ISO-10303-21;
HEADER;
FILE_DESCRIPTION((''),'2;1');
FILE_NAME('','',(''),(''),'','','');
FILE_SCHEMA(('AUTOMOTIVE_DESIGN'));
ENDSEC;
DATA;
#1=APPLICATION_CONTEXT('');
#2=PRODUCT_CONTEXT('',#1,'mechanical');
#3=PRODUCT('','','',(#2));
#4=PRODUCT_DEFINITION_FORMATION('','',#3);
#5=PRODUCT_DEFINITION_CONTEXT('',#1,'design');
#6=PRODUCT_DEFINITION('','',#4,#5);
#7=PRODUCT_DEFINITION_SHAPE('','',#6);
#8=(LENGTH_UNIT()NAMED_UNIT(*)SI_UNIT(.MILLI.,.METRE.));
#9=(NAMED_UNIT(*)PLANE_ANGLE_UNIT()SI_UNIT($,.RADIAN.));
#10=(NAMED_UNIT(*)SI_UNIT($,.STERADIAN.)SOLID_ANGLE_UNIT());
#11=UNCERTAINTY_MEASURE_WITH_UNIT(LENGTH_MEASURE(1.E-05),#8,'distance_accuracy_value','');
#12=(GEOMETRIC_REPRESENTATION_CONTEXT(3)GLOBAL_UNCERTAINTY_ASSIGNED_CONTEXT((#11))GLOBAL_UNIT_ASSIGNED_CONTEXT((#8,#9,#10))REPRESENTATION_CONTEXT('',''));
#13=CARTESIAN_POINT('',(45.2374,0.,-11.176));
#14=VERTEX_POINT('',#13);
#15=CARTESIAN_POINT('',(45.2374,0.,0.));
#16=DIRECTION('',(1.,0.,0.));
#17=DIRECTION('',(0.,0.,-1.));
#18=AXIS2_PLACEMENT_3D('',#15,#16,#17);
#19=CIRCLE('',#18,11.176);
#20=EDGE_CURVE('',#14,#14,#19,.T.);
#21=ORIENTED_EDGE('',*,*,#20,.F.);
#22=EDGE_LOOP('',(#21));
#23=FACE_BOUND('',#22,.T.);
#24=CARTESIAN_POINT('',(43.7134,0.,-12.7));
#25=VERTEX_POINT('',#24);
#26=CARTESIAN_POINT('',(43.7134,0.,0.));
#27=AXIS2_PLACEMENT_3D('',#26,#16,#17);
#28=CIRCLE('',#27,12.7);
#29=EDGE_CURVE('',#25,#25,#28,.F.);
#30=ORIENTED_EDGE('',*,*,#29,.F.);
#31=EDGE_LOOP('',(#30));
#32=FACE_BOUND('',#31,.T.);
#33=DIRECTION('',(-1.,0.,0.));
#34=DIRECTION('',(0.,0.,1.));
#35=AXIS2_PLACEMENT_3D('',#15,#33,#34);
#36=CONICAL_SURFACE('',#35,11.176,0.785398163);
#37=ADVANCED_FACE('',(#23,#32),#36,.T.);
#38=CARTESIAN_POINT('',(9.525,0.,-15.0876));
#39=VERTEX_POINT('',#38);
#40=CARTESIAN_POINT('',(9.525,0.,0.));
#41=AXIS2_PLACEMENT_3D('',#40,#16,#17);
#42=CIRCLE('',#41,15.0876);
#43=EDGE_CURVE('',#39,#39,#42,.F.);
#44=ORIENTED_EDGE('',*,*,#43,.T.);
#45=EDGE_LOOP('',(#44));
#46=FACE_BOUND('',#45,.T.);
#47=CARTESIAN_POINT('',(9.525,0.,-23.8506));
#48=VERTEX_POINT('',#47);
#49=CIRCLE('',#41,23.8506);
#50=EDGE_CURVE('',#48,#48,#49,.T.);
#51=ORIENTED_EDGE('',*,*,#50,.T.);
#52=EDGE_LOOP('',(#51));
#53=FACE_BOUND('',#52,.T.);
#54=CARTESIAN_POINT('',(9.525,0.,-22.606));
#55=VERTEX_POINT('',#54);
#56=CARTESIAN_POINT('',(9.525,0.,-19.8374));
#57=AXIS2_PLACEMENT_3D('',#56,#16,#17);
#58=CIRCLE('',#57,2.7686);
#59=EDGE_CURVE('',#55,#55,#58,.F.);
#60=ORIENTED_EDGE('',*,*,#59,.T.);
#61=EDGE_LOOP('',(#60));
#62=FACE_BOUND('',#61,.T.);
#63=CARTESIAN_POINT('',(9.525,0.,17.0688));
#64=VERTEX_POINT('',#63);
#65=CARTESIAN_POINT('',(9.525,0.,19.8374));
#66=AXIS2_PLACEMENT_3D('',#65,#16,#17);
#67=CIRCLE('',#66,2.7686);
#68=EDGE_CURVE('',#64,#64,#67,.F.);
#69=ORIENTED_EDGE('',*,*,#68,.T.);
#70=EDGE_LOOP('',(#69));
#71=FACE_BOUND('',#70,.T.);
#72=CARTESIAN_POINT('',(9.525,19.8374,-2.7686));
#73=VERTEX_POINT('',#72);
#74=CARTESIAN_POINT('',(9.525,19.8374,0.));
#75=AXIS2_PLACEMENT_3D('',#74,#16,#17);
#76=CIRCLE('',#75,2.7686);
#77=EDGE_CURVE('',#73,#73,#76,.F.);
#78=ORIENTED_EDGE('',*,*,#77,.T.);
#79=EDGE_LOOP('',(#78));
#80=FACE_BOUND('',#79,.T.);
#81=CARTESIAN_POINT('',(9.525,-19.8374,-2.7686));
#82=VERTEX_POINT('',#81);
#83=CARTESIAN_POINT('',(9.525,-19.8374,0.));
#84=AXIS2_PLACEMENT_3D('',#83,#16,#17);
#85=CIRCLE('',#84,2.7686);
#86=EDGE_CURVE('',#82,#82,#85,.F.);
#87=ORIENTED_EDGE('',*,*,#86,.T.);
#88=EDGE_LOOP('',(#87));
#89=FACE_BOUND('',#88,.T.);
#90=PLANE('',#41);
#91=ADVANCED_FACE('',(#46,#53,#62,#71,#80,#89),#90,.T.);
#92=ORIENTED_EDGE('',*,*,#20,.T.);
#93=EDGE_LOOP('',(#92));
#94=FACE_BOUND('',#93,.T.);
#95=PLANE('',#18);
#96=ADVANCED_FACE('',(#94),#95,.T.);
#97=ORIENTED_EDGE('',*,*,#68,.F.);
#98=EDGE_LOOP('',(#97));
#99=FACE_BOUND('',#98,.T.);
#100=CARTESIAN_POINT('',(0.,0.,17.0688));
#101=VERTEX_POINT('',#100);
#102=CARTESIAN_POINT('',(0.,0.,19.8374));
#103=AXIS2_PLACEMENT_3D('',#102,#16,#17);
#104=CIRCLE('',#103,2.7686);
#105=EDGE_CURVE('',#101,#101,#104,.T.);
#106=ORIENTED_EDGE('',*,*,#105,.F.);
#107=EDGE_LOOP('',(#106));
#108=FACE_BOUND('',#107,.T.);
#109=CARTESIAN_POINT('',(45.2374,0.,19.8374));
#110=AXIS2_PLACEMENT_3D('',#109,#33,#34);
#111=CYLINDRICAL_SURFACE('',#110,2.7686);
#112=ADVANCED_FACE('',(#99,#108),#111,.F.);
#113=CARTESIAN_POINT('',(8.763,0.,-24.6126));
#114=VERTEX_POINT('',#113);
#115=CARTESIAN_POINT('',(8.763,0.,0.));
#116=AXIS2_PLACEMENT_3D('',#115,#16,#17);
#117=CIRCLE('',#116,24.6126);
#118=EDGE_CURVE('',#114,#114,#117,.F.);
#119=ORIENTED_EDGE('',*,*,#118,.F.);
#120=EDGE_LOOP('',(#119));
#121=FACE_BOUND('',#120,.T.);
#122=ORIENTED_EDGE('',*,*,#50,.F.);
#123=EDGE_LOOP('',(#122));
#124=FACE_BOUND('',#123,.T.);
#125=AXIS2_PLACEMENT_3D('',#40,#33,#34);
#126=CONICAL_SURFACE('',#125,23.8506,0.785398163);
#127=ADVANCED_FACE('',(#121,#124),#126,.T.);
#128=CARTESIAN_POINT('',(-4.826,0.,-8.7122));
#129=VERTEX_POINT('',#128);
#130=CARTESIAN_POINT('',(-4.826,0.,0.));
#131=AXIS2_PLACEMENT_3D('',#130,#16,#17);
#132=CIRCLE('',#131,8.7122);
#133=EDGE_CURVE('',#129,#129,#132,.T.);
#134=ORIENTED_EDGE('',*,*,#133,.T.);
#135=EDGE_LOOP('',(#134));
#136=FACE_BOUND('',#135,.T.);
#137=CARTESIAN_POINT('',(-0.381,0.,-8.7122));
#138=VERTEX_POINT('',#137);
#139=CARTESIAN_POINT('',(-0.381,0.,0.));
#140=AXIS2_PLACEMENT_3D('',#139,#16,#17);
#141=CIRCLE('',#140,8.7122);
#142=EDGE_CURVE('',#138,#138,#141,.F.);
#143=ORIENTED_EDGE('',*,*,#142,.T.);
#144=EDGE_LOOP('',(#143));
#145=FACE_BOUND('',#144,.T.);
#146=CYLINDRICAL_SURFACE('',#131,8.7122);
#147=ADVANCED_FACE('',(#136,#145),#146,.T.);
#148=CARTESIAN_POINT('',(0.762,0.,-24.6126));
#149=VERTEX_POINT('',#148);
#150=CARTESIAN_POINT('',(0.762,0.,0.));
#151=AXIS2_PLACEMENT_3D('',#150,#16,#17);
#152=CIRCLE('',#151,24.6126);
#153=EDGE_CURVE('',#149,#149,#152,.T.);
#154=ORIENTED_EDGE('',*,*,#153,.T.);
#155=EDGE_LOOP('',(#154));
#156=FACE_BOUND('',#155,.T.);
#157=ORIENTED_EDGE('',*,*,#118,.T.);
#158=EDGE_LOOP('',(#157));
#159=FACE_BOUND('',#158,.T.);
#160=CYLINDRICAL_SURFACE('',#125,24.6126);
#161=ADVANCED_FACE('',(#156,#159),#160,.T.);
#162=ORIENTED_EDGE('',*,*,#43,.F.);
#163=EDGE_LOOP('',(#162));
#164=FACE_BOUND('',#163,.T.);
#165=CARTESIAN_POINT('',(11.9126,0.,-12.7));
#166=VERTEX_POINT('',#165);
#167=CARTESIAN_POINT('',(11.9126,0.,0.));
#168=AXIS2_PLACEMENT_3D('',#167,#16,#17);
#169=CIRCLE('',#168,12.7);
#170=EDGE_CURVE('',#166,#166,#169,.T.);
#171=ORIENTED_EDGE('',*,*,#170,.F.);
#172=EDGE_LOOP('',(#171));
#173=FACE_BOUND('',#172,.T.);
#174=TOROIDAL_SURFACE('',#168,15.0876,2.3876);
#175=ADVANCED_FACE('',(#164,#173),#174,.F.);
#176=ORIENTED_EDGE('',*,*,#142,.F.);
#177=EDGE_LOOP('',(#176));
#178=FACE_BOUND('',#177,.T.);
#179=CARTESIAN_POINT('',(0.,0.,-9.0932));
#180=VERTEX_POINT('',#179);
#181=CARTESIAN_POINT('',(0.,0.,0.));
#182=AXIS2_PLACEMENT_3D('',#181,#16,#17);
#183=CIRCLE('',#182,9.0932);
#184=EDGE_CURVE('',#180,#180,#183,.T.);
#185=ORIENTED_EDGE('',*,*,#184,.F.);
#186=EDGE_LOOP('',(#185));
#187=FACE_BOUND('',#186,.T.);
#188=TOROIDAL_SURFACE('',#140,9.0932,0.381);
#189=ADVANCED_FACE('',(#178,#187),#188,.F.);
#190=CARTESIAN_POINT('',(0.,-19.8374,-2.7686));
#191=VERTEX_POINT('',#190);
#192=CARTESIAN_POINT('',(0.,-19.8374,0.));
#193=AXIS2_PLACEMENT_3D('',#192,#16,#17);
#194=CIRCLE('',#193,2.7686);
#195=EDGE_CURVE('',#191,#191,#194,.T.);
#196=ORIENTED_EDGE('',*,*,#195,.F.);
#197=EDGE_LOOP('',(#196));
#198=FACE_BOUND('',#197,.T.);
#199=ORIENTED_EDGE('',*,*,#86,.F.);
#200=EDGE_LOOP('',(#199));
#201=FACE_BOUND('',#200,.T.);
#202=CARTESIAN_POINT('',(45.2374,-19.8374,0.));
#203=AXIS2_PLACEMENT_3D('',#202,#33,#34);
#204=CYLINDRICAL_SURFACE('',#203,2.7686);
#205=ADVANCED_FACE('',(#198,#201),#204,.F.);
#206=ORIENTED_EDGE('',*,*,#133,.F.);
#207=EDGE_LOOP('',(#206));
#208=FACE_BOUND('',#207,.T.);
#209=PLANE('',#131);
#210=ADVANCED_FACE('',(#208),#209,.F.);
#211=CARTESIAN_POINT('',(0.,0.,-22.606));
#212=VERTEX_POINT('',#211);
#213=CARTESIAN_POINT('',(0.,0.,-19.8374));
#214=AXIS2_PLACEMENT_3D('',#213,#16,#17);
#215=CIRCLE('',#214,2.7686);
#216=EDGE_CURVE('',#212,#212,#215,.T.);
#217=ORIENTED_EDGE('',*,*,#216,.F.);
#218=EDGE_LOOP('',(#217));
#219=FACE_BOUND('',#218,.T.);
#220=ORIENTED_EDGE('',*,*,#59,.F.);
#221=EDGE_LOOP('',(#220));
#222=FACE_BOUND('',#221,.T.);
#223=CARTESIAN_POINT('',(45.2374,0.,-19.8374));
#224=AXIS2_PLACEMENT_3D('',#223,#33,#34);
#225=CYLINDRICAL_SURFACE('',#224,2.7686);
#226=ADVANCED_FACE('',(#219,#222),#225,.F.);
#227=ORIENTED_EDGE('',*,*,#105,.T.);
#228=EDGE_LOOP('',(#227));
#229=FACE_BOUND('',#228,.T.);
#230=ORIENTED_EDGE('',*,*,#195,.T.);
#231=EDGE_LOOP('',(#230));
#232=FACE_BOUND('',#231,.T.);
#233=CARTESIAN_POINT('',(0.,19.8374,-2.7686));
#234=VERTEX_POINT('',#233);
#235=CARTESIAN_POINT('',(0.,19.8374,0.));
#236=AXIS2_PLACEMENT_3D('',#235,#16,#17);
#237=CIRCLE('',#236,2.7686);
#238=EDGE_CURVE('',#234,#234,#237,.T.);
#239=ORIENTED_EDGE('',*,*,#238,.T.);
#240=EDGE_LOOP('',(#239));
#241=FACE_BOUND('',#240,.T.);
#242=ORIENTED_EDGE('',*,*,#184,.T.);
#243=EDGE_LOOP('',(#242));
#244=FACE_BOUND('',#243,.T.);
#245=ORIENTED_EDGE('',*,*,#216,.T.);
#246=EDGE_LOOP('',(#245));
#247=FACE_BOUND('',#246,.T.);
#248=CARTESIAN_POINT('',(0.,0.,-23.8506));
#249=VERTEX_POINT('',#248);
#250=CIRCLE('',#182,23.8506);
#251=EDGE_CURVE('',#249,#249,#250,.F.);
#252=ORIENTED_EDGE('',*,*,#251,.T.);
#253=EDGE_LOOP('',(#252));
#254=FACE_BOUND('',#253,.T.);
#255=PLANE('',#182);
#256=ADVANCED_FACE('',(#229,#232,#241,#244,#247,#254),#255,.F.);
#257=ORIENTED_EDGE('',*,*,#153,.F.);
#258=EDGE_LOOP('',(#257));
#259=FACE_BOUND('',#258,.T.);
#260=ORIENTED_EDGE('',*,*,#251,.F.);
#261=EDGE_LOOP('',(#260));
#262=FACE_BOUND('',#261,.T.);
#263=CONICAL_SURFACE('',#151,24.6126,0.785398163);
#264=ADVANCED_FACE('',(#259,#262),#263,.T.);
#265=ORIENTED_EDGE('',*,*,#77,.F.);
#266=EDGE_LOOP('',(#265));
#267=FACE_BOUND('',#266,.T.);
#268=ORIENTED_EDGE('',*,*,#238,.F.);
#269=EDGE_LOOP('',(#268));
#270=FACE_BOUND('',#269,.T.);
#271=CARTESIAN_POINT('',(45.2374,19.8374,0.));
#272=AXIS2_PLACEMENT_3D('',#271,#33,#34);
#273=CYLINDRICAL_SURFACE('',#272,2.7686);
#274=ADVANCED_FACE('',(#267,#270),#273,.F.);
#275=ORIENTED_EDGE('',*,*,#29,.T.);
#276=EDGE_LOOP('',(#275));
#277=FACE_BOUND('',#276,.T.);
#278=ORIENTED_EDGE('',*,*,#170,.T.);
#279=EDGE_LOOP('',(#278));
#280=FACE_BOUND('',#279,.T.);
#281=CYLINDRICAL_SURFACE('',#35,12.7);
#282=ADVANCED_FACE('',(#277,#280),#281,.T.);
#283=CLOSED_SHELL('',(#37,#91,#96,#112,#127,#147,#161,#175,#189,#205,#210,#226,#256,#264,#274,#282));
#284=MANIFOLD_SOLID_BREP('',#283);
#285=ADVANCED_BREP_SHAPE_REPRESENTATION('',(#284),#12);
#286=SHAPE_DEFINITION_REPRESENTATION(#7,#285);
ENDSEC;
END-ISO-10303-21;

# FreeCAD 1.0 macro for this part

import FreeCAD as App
import Part
import Sketcher
Q = App.Units.Quantity


def edges_at(feature, points):
    """Names of the edges that pass closest to the given points."""
    edges = feature.Shape.Edges
    near = lambda p: min(range(len(edges)), key=lambda i: edges[i].distToShape(Part.Vertex(*p))[0])
    return sorted({f"Edge{near(p) + 1}" for p in points})

doc = App.newDocument("Part")
params = doc.addObject("Spreadsheet::Sheet", "Params")
for row, (alias, value) in enumerate([
    ("sketch1_diameter", "1.938 in"),
    ("pad1_length", "0.375 in"),
    ("sketch2_diameter", "1 in"),
    ("pad2_length", "1.406 in"),
    ("sketch3_diameter", "0.686 in"),
    ("pad3_length", "0.19 in"),
    ("sketch4_diameter", "0.218 in"),
    ("fillet_radius", "0.015 in"),
    ("fillet2_radius", "0.094 in"),
    ("chamfer_size", "0.03 in"),
    ("chamfer2_size", "0.06 in"),
], start=1):
    params.set(f"A{row}", alias)
    params.set(f"B{row}", "=" + value)
    params.setAlias(f"B{row}", alias)

body = doc.addObject("PartDesign::Body", "Body")

# Sketch on YZ plane
sketch1 = body.newObject("Sketcher::SketchObject", "Sketch")
sketch1.AttachmentSupport = (doc.getObject("YZ_Plane"), [""])
sketch1.MapMode = "FlatFace"
sketch1.addGeometry(Part.Circle(App.Vector(0, 0, 0), App.Vector(0, 0, 1), 24.6126), False)
sketch1.addConstraint([
    Sketcher.Constraint("Coincident", 0, 3, -1, 1),
    Sketcher.Constraint("Diameter", 0, Q("1.938 in")),
])
sketch1.setExpression("Constraints[1]", "Params.sketch1_diameter")
pad1 = body.newObject("PartDesign::Pad", "Pad")
pad1.Profile = sketch1
pad1.setExpression("Length", "Params.pad1_length")

# Sketch on YZ plane
sketch2 = body.newObject("Sketcher::SketchObject", "Sketch001")
sketch2.AttachmentSupport = (doc.getObject("YZ_Plane"), [""])
sketch2.MapMode = "FlatFace"
sketch2.AttachmentOffset = App.Placement(App.Vector(0, 0, 0.375 * 25.4), App.Rotation())
sketch2.addGeometry(Part.Circle(App.Vector(0, 0, 0), App.Vector(0, 0, 1), 12.7), False)
sketch2.addConstraint([
    Sketcher.Constraint("Coincident", 0, 3, -1, 1),
    Sketcher.Constraint("Diameter", 0, Q("1 in")),
])
sketch2.setExpression("Constraints[1]", "Params.sketch2_diameter")
pad2 = body.newObject("PartDesign::Pad", "Pad001")
pad2.Profile = sketch2
pad2.setExpression("Length", "Params.pad2_length")

# Sketch on YZ plane
sketch3 = body.newObject("Sketcher::SketchObject", "Sketch002")
sketch3.AttachmentSupport = (doc.getObject("YZ_Plane"), [""])
sketch3.MapMode = "FlatFace"
sketch3.addGeometry(Part.Circle(App.Vector(0, 0, 0), App.Vector(0, 0, 1), 8.7122), False)
sketch3.addConstraint([
    Sketcher.Constraint("Coincident", 0, 3, -1, 1),
    Sketcher.Constraint("Diameter", 0, Q("0.686 in")),
])
sketch3.setExpression("Constraints[1]", "Params.sketch3_diameter")
pad3 = body.newObject("PartDesign::Pad", "Pad002")
pad3.Profile = sketch3
pad3.setExpression("Length", "Params.pad3_length")
pad3.Reversed = True

# Sketch on YZ plane
sketch4 = body.newObject("Sketcher::SketchObject", "Sketch003")
sketch4.AttachmentSupport = (doc.getObject("YZ_Plane"), [""])
sketch4.MapMode = "FlatFace"
sketch4.addGeometry([
    Part.Circle(App.Vector(0, 19.8374, 0), App.Vector(0, 0, 1), 2.7686),
    Part.Circle(App.Vector(19.8374, 0, 0), App.Vector(0, 0, 1), 2.7686),
    Part.Circle(App.Vector(0, -19.8374, 0), App.Vector(0, 0, 1), 2.7686),
    Part.Circle(App.Vector(-19.8374, 0, 0), App.Vector(0, 0, 1), 2.7686),
], False)
sketch4.addConstraint([
    Sketcher.Constraint("Equal", 0, 1),
    Sketcher.Constraint("Equal", 1, 2),
    Sketcher.Constraint("Equal", 2, 3),
    Sketcher.Constraint("Symmetric", 0, 3, 2, 3, -1, 1),
    Sketcher.Constraint("Symmetric", 1, 3, 3, 3, -1, 1),
    Sketcher.Constraint("PointOnObject", 0, 3, -2),
    Sketcher.Constraint("PointOnObject", 1, 3, -1),
    Sketcher.Constraint("Diameter", 0, Q("0.218 in")),
    Sketcher.Constraint("DistanceY", -1, 1, 0, 3, Q("0.781 in")),
    Sketcher.Constraint("DistanceX", -1, 1, 1, 3, Q("0.781 in")),
])
sketch4.setExpression("Constraints[7]", "Params.sketch4_diameter")
pocket1 = body.newObject("PartDesign::Pocket", "Pocket")
pocket1.Profile = sketch4
pocket1.Type = "ThroughAll"
pocket1.Reversed = True
doc.recompute()

fillet = body.newObject("PartDesign::Fillet", "Fillet")
fillet.Base = (pocket1, edges_at(pocket1, [(0, 0, 8.712)]))
fillet.setExpression("Radius", "Params.fillet_radius")
doc.recompute()

fillet2 = body.newObject("PartDesign::Fillet", "Fillet001")
fillet2.Base = (fillet, edges_at(fillet, [(9.525, 0, 12.7)]))
fillet2.setExpression("Radius", "Params.fillet2_radius")
doc.recompute()

chamfer = body.newObject("PartDesign::Chamfer", "Chamfer")
chamfer.Base = (fillet2, edges_at(fillet2, [(0, 0, 24.613), (9.525, 0, 24.613)]))
chamfer.setExpression("Size", "Params.chamfer_size")
doc.recompute()

chamfer2 = body.newObject("PartDesign::Chamfer", "Chamfer001")
chamfer2.Base = (chamfer, edges_at(chamfer, [(45.237, 0, 12.7)]))
chamfer2.setExpression("Size", "Params.chamfer2_size")

doc.recompute()
